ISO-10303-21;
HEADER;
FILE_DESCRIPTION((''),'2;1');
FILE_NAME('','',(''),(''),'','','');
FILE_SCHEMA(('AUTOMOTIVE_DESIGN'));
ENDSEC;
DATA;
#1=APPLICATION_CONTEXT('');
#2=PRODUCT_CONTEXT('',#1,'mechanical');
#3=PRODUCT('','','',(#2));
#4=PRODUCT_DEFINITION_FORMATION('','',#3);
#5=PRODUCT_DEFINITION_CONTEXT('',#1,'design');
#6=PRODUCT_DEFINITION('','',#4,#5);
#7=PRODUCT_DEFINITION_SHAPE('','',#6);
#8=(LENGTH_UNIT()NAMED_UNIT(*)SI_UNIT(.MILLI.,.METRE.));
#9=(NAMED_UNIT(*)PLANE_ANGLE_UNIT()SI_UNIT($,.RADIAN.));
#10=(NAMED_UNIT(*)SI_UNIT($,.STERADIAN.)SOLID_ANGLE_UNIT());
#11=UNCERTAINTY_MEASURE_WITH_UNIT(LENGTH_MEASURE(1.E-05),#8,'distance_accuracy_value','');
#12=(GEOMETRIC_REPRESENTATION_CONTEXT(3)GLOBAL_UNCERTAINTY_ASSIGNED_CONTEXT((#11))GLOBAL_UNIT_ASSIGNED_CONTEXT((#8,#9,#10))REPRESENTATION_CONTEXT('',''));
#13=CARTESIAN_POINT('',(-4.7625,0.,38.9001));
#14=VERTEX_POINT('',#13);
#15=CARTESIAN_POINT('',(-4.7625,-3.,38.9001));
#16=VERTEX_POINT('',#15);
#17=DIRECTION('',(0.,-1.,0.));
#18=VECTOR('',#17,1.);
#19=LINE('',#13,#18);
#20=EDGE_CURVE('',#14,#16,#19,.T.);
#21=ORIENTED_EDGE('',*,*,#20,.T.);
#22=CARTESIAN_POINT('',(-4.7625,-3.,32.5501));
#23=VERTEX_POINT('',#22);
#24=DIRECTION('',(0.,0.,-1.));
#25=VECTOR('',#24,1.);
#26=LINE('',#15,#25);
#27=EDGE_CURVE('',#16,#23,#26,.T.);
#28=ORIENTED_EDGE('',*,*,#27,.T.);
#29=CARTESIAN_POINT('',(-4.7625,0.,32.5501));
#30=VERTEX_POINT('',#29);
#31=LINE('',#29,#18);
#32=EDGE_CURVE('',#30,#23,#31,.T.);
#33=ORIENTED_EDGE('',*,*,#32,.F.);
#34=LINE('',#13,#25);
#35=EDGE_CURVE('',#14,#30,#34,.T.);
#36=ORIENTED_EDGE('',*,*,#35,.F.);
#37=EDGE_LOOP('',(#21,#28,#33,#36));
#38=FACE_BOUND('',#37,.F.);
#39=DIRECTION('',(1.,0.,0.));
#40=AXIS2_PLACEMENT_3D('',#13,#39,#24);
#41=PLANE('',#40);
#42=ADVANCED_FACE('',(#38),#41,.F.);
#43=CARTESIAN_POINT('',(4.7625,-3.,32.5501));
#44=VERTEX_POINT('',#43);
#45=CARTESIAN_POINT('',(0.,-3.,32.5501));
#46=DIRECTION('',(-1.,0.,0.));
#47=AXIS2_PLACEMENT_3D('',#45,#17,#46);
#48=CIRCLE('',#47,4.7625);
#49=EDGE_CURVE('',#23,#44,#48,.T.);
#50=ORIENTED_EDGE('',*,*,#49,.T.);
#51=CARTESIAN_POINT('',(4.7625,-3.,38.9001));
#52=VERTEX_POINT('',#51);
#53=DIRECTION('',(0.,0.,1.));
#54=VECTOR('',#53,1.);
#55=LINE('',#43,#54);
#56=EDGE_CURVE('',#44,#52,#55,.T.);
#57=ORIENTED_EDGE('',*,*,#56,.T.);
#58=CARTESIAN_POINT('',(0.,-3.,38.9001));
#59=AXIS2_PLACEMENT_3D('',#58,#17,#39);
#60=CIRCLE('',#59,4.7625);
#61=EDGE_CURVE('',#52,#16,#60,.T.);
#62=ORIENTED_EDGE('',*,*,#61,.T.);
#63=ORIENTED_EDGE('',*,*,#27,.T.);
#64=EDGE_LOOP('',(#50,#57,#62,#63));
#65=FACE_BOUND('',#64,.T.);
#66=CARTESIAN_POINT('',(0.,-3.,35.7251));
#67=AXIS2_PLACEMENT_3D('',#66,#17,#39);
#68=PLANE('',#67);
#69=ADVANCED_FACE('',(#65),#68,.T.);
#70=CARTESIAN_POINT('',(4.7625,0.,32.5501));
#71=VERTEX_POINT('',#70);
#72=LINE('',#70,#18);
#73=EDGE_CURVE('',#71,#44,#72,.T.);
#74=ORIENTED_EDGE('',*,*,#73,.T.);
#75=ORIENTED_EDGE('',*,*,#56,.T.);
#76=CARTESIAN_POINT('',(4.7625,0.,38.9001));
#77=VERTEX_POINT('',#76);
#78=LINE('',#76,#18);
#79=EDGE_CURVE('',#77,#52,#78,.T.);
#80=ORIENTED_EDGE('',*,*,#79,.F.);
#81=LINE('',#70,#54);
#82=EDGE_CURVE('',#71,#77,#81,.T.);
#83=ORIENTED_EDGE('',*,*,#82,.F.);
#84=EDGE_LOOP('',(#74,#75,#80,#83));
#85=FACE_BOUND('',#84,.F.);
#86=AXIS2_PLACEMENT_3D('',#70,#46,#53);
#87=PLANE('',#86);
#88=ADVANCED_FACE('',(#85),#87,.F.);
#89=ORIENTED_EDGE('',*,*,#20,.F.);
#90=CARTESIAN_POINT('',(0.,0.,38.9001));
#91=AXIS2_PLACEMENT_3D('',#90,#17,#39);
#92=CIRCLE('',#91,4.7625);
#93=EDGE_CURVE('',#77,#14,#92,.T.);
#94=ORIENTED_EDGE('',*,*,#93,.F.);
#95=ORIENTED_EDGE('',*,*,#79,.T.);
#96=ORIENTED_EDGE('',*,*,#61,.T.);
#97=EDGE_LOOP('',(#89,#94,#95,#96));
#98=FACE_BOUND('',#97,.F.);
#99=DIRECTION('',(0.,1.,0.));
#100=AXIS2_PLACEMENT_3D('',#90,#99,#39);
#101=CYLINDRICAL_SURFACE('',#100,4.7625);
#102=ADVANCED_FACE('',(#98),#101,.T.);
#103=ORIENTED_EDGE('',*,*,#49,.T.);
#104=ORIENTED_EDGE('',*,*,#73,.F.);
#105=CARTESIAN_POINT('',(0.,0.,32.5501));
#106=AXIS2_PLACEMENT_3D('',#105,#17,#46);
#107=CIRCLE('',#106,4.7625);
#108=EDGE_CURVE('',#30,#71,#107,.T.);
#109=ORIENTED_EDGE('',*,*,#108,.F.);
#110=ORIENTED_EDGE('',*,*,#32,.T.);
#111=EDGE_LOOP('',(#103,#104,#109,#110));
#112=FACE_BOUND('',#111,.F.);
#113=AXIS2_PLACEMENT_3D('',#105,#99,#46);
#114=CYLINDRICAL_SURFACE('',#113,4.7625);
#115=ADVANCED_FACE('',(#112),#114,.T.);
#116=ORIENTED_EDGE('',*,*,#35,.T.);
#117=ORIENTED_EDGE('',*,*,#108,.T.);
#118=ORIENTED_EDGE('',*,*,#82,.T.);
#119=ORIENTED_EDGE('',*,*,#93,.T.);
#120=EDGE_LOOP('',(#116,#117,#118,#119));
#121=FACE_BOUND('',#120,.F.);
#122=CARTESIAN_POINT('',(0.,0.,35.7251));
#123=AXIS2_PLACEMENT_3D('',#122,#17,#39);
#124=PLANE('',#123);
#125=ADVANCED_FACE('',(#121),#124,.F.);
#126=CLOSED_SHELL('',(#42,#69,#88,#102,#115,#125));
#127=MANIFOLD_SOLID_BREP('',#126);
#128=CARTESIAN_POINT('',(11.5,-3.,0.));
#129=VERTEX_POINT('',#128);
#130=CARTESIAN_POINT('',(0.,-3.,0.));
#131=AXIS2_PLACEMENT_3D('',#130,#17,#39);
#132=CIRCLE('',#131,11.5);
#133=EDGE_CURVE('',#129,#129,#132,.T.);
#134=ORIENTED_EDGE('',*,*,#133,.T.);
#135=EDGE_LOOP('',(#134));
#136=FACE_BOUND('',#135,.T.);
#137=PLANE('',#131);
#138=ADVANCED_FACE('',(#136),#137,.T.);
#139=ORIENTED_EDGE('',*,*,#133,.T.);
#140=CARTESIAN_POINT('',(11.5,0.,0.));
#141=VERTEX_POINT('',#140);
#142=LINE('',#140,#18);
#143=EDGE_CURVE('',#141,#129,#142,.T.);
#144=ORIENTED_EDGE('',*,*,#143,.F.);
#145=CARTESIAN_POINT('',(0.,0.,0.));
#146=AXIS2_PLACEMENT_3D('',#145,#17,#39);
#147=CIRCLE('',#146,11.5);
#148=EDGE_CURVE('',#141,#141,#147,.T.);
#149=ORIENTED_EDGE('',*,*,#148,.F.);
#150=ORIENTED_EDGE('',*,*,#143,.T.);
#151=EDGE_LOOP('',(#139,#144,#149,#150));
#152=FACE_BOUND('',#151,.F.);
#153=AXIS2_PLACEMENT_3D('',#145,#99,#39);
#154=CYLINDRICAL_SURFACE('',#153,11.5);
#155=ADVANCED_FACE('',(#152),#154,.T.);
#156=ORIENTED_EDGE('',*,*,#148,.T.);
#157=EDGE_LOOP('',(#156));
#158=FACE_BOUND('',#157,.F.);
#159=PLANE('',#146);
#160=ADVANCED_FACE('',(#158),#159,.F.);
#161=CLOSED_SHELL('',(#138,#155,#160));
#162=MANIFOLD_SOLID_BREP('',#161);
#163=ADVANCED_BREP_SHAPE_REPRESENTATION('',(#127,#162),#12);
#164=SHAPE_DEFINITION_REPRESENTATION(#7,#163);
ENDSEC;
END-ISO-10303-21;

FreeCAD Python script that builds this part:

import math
import FreeCAD as App
import Part
import Sketcher

V = App.Vector
Q = App.Units.Quantity

doc = App.newDocument("Part")
body = doc.addObject("PartDesign::Body", "Body")
body.AllowCompound = True

# Sketch on XZ plane
sketch1 = doc.addObject("Sketcher::SketchObject", "Sketch")
body.addObject(sketch1)
sketch1.AttachmentSupport = (doc.XZ_Plane, [""])
sketch1.MapMode = "FlatFace"
sketch1.addGeometry(Part.Circle(V(0, 0, 0), V(0, 0, 1), 11.5), False)
sketch1.addGeometry(Part.LineSegment(V(-4.8, 38.9, 0), V(-4.8, 32.6, 0)), False)
sketch1.addGeometry(Part.ArcOfCircle(Part.Circle(V(0, 32.6, 0), V(0, 0, 1), 4.8), math.radians(180), math.radians(360)), False)
sketch1.addGeometry(Part.LineSegment(V(4.8, 32.6, 0), V(4.8, 38.9, 0)), False)
sketch1.addGeometry(Part.ArcOfCircle(Part.Circle(V(0, 38.9, 0), V(0, 0, 1), 4.8), math.radians(0), math.radians(180)), False)
sketch1.addConstraint(Sketcher.Constraint("Tangent", 1, 2, 2, 1))
sketch1.addConstraint(Sketcher.Constraint("Tangent", 2, 2, 3, 1))
sketch1.addConstraint(Sketcher.Constraint("Tangent", 3, 2, 4, 1))
sketch1.addConstraint(Sketcher.Constraint("Tangent", 4, 2, 1, 1))
sketch1.addConstraint(Sketcher.Constraint("Vertical", 1))
sketch1.addConstraint(Sketcher.Constraint("Vertical", 3))
sketch1.addConstraint(Sketcher.Constraint("Coincident", 0, 3, -1, 1))
sketch1.addConstraint(Sketcher.Constraint("PointOnObject", 2, 3, -2))
sketch1.addConstraint(Sketcher.Constraint("Diameter", 0, Q("23 mm")))
sketch1.addConstraint(Sketcher.Constraint("DistanceY", 1, 2, 1, 1, Q("6.35 mm")))
sketch1.addConstraint(Sketcher.Constraint("Radius", 2, Q("4.7625 mm")))
sketch1.addConstraint(Sketcher.Constraint("DistanceY", -1, 1, 2, 3, Q("32.5501 mm")))
pad1 = doc.addObject("PartDesign::Pad", "Pad")
body.addObject(pad1)
pad1.Profile = sketch1
pad1.Length = 3

# Sketch on XZ plane
sketch2 = doc.addObject("Sketcher::SketchObject", "Sketch001")
body.addObject(sketch2)
sketch2.AttachmentSupport = (doc.XZ_Plane, [""])
sketch2.MapMode = "FlatFace"
sketch2.AttachmentOffset = App.Placement(V(0, 0, 3), App.Rotation())
sketch2.addGeometry(Part.LineSegment(V(-10.9, 32.6, 0), V(-10.9, 38.5, 0)), False)
sketch2.addGeometry(Part.ArcOfCircle(Part.Circle(V(-12.5, 38.5, 0), V(0, 0, 1), 1.6), math.radians(0), math.radians(180)), False)
sketch2.addGeometry(Part.LineSegment(V(-14.1, 38.5, 0), V(-14.1, 32.6, 0)), False)
sketch2.addGeometry(Part.ArcOfCircle(Part.Circle(V(-12.5, 32.6, 0), V(0, 0, 1), 1.6), math.radians(180), math.radians(360)), False)
sketch2.addGeometry(Part.ArcOfCircle(Part.Circle(V(12.5, 38.5, 0), V(0, 0, 1), 1.6), math.radians(0), math.radians(180)), False)
sketch2.addGeometry(Part.LineSegment(V(10.9, 38.5, 0), V(10.9, 32.6, 0)), False)
sketch2.addGeometry(Part.ArcOfCircle(Part.Circle(V(12.5, 32.6, 0), V(0, 0, 1), 1.6), math.radians(180), math.radians(360)), False)
sketch2.addGeometry(Part.LineSegment(V(14.1, 32.6, 0), V(14.1, 38.5, 0)), False)
sketch2.addConstraint(Sketcher.Constraint("Tangent", 0, 2, 1, 1))
sketch2.addConstraint(Sketcher.Constraint("Tangent", 1, 2, 2, 1))
sketch2.addConstraint(Sketcher.Constraint("Tangent", 2, 2, 3, 1))
sketch2.addConstraint(Sketcher.Constraint("Tangent", 3, 2, 0, 1))
sketch2.addConstraint(Sketcher.Constraint("Tangent", 4, 2, 5, 1))
sketch2.addConstraint(Sketcher.Constraint("Tangent", 5, 2, 6, 1))
sketch2.addConstraint(Sketcher.Constraint("Tangent", 6, 2, 7, 1))
sketch2.addConstraint(Sketcher.Constraint("Tangent", 7, 2, 4, 1))
sketch2.addConstraint(Sketcher.Constraint("Vertical", 0))
sketch2.addConstraint(Sketcher.Constraint("Vertical", 2))
sketch2.addConstraint(Sketcher.Constraint("Vertical", 5))
sketch2.addConstraint(Sketcher.Constraint("Vertical", 7))
sketch2.addConstraint(Sketcher.Constraint("Equal", 3, 4))
sketch2.addConstraint(Sketcher.Constraint("Symmetric", 1, 3, 4, 3, -2))
sketch2.addConstraint(Sketcher.Constraint("Horizontal", 3, 3, 6, 3))
sketch2.addConstraint(Sketcher.Constraint("DistanceX", 1, 3, 4, 3, Q("25 mm")))
sketch2.addConstraint(Sketcher.Constraint("Radius", 1, Q("1.5875 mm")))
sketch2.addConstraint(Sketcher.Constraint("DistanceY", 0, 1, 0, 2, Q("5.9001 mm")))
sketch2.addConstraint(Sketcher.Constraint("DistanceY", -1, 1, 1, 3, Q("38.4502 mm")))
pocket1 = doc.addObject("PartDesign::Pocket", "Pocket")
body.addObject(pocket1)
pocket1.Profile = sketch2
pocket1.Type = "ThroughAll"

# Sketch on XZ plane
sketch3 = doc.addObject("Sketcher::SketchObject", "Sketch002")
body.addObject(sketch3)
sketch3.AttachmentSupport = (doc.XZ_Plane, [""])
sketch3.MapMode = "FlatFace"
sketch3.AttachmentOffset = App.Placement(V(0, 0, 3), App.Rotation())
sketch3.addGeometry(Part.Circle(V(0, 15, 0), V(0, 0, 1), 1.2), False)
sketch3.addGeometry(Part.Circle(V(-24.5, -15, 0), V(0, 0, 1), 1.2), False)
sketch3.addGeometry(Part.Circle(V(24.5, -15, 0), V(0, 0, 1), 1.2), False)
sketch3.addConstraint(Sketcher.Constraint("Equal", 0, 1))
sketch3.addConstraint(Sketcher.Constraint("Equal", 1, 2))
sketch3.addConstraint(Sketcher.Constraint("Symmetric", 1, 3, 2, 3, -2))
sketch3.addConstraint(Sketcher.Constraint("PointOnObject", 0, 3, -2))
sketch3.addConstraint(Sketcher.Constraint("Diameter", 0, Q("2.5 mm")))
sketch3.addConstraint(Sketcher.Constraint("DistanceY", -1, 1, 0, 3, Q("15 mm")))
sketch3.addConstraint(Sketcher.Constraint("DistanceY", 1, 3, -1, 1, Q("15 mm")))
sketch3.addConstraint(Sketcher.Constraint("DistanceX", 1, 3, 2, 3, Q("49 mm")))
pocket2 = doc.addObject("PartDesign::Pocket", "Pocket001")
body.addObject(pocket2)
pocket2.Profile = sketch3
pocket2.Type = "ThroughAll"

doc.recompute()
